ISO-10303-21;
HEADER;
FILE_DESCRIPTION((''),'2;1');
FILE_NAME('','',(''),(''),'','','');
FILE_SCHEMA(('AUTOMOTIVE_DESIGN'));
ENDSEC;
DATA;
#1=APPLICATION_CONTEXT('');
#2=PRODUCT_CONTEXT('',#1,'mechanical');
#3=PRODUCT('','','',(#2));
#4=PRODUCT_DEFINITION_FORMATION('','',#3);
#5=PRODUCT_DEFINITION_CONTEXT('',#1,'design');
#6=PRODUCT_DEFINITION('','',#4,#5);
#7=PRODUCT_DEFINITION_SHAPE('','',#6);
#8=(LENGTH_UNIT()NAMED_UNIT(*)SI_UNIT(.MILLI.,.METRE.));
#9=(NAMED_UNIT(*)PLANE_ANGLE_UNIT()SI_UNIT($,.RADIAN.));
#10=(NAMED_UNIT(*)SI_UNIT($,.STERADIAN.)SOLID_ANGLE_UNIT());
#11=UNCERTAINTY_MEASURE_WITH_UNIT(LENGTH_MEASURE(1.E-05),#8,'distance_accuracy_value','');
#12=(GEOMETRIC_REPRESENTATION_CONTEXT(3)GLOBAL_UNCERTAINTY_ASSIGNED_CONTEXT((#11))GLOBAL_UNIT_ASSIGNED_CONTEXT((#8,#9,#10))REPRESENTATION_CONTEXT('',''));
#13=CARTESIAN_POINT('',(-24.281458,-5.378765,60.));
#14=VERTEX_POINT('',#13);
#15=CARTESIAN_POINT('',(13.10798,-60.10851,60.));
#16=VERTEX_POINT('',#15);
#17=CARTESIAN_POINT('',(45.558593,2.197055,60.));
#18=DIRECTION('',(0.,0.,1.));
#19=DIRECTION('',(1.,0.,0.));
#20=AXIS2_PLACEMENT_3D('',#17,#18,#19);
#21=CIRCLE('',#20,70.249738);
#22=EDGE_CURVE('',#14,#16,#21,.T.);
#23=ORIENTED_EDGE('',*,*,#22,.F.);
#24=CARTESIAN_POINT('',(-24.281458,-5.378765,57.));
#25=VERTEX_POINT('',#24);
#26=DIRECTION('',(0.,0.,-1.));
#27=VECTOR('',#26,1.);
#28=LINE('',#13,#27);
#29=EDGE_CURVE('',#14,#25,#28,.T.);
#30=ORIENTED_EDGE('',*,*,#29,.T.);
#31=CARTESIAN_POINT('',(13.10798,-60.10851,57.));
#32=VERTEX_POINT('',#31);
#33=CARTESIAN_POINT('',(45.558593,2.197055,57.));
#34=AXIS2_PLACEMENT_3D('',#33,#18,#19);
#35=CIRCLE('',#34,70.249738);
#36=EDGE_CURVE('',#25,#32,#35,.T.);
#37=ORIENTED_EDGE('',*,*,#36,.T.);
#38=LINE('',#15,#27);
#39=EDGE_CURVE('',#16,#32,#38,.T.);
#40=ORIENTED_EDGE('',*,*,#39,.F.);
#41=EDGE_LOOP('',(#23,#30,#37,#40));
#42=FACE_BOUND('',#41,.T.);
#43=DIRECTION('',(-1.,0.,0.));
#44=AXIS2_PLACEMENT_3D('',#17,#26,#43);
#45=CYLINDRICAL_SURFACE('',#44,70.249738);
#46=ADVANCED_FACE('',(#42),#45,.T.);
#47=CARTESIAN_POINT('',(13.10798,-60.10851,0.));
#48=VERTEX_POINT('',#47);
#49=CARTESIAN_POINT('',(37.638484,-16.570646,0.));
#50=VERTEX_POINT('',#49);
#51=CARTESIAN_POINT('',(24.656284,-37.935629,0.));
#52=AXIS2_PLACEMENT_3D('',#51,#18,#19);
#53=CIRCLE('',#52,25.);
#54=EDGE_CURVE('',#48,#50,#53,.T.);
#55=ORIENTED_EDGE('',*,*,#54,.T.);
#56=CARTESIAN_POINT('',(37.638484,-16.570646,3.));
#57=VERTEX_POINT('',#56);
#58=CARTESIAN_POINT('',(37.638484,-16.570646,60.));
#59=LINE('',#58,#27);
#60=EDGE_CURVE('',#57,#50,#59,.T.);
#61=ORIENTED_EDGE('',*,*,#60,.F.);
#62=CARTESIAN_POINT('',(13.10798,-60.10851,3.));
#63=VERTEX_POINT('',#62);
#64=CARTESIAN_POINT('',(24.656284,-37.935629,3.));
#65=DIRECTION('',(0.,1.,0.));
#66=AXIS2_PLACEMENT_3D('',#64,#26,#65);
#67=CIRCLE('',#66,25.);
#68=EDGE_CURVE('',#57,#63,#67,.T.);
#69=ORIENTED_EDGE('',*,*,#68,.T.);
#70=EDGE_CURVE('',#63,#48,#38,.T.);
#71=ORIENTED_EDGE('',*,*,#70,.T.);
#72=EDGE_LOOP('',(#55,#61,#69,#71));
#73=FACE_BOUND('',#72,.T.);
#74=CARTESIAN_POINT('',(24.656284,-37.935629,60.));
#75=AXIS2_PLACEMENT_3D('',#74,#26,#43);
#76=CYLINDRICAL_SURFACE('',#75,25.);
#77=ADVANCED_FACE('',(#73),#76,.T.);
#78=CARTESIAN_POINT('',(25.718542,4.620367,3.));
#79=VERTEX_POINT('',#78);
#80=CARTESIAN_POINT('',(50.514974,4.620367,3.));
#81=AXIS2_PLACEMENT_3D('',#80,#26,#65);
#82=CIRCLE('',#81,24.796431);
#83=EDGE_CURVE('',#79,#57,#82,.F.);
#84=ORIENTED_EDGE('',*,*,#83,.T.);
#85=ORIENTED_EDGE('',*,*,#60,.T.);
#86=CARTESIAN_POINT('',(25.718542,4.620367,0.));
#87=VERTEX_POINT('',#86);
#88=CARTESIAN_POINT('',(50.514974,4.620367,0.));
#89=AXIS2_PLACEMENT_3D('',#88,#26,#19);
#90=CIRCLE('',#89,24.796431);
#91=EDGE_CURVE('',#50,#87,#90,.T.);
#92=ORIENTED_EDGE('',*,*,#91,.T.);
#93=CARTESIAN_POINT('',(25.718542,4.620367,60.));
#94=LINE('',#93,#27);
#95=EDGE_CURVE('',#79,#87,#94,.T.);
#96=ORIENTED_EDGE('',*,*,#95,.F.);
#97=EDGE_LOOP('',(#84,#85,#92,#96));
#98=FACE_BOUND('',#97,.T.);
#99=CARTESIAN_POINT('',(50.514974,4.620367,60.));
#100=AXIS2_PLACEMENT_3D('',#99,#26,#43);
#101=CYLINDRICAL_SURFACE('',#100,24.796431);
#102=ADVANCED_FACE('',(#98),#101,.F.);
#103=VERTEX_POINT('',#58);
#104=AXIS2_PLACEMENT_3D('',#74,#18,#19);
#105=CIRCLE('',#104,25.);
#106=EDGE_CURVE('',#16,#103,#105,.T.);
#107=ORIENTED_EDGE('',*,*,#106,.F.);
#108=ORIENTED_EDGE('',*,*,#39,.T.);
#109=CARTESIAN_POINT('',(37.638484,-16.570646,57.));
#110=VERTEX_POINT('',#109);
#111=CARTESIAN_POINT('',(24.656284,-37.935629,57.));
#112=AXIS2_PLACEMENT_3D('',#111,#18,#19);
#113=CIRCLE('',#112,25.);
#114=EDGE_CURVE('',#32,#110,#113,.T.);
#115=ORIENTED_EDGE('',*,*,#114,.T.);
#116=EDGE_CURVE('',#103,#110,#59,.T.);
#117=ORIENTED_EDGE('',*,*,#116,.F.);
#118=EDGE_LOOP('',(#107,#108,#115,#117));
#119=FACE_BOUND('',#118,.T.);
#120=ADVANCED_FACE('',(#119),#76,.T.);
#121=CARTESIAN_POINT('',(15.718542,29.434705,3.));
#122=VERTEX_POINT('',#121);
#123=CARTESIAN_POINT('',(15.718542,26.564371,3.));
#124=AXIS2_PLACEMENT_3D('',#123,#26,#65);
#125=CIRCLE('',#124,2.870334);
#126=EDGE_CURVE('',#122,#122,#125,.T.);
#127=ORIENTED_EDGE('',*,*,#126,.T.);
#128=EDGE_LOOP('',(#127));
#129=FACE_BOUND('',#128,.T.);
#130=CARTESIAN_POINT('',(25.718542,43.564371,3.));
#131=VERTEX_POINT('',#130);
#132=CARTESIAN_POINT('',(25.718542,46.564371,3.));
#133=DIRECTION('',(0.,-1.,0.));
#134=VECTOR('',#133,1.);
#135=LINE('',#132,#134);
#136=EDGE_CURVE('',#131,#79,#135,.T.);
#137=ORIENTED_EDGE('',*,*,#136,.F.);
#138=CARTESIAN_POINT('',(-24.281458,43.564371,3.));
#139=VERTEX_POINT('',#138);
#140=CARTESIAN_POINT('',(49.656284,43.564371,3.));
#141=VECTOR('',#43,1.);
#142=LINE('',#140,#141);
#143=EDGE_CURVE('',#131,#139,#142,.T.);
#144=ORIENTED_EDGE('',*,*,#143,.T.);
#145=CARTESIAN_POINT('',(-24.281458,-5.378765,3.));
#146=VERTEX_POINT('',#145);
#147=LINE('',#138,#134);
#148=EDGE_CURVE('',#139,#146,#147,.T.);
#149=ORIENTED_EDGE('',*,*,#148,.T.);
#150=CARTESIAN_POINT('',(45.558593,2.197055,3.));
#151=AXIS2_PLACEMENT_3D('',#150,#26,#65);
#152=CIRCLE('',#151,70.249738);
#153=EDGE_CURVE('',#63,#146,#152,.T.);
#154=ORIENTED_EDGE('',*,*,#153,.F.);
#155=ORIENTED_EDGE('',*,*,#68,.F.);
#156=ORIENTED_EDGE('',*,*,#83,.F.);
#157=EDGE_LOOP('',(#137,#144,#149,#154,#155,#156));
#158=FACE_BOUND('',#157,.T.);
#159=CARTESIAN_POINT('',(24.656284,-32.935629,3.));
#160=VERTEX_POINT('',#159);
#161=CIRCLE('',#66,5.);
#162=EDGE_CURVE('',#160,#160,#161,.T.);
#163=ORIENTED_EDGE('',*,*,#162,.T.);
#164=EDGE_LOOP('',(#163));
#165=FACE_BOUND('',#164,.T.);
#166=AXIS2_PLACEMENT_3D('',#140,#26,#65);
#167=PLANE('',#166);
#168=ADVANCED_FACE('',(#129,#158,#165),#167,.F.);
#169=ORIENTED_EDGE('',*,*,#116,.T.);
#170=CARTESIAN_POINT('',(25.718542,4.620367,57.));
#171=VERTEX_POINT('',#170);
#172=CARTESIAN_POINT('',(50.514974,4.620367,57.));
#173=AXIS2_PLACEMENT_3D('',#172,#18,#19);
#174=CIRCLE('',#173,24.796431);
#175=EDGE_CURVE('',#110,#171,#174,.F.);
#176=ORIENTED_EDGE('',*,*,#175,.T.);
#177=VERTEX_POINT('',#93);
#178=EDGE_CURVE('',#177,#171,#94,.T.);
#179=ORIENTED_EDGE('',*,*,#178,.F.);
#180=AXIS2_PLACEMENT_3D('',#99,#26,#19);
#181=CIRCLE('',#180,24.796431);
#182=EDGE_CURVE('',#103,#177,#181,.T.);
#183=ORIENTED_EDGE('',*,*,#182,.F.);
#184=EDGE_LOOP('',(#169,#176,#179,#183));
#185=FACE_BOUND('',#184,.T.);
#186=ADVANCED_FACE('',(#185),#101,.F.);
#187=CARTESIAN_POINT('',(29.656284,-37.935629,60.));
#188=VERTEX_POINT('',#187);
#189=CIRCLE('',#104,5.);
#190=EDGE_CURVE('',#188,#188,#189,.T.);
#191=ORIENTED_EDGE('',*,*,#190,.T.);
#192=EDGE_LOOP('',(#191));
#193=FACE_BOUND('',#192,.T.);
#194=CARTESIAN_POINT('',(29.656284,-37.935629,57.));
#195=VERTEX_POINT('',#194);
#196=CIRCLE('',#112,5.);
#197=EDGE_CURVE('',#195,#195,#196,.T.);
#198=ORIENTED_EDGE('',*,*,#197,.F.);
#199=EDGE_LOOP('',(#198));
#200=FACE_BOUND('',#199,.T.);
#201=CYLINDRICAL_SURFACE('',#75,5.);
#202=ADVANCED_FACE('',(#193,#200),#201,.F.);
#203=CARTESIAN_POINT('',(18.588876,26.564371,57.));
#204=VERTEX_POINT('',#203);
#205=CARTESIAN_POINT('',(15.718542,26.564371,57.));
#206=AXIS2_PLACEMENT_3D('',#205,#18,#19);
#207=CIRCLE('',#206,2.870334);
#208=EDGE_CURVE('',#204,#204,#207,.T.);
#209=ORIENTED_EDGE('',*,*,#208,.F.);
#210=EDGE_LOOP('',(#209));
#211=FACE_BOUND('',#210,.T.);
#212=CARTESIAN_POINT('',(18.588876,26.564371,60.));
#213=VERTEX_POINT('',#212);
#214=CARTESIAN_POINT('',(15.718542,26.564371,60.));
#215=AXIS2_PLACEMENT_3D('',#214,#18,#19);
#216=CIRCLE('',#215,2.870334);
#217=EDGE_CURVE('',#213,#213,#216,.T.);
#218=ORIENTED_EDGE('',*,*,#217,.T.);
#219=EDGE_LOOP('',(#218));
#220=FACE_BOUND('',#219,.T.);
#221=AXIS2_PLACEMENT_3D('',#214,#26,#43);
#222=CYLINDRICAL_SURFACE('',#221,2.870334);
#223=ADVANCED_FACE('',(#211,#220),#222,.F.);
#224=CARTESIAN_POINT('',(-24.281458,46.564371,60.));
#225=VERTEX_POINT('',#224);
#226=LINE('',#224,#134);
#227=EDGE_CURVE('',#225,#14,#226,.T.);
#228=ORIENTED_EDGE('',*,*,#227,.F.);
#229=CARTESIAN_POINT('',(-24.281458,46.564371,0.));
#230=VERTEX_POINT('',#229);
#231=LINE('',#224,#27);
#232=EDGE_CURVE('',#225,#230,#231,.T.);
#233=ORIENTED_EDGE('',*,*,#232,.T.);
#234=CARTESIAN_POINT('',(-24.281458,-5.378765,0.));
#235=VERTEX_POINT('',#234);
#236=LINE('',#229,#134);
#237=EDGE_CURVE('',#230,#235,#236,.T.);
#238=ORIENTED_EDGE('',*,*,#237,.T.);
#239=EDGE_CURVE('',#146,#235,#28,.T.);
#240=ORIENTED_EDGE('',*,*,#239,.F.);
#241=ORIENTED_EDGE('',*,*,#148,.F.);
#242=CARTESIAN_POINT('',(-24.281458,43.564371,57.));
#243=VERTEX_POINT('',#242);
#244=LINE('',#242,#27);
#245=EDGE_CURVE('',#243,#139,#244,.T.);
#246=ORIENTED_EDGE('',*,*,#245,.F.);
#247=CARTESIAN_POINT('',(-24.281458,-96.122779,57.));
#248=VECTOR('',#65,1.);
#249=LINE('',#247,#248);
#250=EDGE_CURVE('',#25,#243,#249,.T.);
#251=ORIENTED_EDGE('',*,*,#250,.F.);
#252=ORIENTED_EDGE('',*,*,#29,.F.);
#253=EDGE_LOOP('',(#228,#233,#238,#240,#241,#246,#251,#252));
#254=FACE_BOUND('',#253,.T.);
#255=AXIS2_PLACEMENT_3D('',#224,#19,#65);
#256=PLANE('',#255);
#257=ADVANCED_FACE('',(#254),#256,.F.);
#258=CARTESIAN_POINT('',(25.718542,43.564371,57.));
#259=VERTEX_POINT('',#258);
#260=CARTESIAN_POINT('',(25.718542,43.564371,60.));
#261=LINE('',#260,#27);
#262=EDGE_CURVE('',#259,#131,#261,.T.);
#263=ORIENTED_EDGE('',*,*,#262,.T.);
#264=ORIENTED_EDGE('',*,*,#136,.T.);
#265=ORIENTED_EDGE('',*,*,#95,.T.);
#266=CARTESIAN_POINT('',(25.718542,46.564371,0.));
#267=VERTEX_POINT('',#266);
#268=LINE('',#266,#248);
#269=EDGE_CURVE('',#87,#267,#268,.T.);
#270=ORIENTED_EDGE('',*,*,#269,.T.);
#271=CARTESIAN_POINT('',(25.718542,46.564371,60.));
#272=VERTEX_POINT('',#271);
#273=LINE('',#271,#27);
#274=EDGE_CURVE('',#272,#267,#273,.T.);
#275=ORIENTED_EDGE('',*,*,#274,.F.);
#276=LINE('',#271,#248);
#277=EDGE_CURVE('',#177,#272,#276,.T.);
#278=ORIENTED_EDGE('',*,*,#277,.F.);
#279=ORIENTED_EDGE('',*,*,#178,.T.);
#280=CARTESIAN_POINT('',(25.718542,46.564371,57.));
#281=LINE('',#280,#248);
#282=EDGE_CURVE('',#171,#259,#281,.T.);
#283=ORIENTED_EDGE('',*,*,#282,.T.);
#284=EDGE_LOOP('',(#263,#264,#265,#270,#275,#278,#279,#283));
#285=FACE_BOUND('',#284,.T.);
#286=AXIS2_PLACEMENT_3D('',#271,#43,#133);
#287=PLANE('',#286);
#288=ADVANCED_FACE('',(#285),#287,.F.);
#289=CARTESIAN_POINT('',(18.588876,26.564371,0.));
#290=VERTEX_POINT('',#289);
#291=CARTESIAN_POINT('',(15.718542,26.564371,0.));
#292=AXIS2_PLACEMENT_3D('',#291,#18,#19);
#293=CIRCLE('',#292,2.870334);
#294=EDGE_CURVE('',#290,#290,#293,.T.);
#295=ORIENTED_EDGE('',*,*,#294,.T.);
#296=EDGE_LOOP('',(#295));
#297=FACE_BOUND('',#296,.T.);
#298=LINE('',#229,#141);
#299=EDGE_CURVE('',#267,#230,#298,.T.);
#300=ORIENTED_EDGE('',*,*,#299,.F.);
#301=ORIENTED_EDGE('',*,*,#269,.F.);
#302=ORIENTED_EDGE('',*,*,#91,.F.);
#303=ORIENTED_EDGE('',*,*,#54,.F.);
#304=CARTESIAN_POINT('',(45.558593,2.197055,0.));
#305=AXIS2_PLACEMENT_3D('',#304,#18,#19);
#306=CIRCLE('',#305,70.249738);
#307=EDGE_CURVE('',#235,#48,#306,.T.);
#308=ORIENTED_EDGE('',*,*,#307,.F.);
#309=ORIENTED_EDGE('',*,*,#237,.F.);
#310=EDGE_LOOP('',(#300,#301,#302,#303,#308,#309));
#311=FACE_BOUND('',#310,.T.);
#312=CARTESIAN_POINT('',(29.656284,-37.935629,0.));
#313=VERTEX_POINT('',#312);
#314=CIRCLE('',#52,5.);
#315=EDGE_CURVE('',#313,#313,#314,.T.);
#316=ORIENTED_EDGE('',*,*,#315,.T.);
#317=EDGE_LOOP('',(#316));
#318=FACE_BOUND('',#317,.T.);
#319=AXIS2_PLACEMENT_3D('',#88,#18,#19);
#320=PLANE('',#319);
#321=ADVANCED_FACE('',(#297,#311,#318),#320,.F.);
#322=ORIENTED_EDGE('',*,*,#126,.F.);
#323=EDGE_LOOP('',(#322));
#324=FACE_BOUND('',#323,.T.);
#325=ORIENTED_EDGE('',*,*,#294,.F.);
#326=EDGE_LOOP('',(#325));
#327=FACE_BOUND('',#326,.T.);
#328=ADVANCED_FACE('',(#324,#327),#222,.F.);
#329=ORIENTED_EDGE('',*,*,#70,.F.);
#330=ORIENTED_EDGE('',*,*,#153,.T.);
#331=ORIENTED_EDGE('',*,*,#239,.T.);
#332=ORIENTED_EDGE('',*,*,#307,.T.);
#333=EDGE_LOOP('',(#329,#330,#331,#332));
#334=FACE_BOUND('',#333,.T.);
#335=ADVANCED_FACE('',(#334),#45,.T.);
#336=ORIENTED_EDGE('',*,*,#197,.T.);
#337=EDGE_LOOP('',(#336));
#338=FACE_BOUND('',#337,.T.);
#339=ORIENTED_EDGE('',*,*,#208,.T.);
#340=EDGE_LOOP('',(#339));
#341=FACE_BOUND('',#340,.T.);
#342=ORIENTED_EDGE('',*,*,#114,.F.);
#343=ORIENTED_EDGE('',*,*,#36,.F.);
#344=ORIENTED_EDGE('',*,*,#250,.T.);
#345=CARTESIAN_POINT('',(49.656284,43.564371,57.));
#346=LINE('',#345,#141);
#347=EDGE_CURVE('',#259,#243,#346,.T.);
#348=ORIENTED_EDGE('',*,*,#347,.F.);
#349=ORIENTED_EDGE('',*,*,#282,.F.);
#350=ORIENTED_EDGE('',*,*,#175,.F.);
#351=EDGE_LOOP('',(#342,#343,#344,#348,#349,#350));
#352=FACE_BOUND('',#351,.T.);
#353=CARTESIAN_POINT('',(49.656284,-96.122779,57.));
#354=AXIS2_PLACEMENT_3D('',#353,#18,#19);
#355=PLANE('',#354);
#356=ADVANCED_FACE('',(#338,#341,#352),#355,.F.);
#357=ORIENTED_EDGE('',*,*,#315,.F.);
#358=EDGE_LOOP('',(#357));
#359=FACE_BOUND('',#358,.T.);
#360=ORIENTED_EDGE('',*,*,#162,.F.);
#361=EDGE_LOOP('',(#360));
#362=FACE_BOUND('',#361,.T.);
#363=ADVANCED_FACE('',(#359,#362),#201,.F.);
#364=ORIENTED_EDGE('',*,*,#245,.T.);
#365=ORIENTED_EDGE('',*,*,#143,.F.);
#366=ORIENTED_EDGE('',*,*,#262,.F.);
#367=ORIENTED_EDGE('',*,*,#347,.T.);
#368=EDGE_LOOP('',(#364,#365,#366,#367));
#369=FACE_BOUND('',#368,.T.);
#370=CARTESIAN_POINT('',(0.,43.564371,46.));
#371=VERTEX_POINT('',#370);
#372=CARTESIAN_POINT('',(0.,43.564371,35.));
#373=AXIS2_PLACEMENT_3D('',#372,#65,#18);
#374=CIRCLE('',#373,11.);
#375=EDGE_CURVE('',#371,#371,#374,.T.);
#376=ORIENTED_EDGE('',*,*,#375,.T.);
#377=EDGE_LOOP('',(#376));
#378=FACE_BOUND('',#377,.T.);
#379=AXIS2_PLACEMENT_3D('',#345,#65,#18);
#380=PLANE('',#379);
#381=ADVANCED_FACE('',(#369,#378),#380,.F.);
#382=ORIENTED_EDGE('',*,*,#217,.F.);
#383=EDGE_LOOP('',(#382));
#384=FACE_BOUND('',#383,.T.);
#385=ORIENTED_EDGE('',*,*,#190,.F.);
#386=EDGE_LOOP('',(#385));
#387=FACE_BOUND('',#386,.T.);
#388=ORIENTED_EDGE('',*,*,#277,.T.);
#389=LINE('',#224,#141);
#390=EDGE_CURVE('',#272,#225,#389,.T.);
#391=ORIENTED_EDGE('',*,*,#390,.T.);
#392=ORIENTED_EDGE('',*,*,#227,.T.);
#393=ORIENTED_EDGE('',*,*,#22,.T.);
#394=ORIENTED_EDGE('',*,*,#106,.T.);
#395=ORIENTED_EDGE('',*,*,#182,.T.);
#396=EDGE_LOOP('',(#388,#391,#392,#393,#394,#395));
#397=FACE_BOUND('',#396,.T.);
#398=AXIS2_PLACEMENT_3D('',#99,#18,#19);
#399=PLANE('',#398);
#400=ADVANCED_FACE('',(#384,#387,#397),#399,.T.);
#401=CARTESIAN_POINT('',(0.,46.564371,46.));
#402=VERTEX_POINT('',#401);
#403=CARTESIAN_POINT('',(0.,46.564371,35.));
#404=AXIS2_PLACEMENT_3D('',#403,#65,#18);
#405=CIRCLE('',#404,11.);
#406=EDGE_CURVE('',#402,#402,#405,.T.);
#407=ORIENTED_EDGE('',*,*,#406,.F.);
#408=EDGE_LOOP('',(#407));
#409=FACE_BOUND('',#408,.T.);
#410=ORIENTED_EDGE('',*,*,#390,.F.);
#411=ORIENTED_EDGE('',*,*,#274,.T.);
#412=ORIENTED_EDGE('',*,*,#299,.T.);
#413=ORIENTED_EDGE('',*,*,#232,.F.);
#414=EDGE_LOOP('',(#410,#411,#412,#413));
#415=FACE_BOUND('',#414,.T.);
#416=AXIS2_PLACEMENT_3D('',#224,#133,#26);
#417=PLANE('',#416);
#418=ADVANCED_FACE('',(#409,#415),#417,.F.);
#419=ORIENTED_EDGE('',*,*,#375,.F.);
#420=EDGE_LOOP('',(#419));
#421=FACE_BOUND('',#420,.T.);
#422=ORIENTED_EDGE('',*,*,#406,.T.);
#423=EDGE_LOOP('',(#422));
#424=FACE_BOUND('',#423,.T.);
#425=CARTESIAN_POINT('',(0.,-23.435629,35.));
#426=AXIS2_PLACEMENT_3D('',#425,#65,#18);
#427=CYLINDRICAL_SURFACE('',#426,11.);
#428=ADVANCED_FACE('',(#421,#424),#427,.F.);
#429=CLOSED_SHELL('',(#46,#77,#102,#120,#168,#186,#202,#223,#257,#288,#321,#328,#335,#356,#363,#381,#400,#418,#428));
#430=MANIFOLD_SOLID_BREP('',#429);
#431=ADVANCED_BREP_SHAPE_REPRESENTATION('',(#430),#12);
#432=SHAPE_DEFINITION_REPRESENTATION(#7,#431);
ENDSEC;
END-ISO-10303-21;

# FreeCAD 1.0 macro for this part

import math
import FreeCAD as App
import Part
import Sketcher
from FreeCAD import Vector
Q = App.Units.Quantity


def add_polygon(sketch, points):
    """Adds a closed chain of lines whose ends are joined by coincident constraints."""
    first, n = sketch.GeometryCount, len(points)
    for a, b in zip(points, points[1:] + points[:1]):
        sketch.addGeometry(Part.LineSegment(App.Vector(*a, 0), App.Vector(*b, 0)), False)
    for i in range(n):
        sketch.addConstraint(Sketcher.Constraint("Coincident", first + i, 2, first + (i + 1) % n, 1))

doc = App.newDocument("Part")
body = doc.addObject("PartDesign::Body", "Body")

# Sketch on XY plane
sketch1 = body.newObject("Sketcher::SketchObject", "Sketch")
sketch1.AttachmentSupport = (doc.getObject("XY_Plane"), [""])
sketch1.MapMode = "FlatFace"
sketch1.addGeometry([
    Part.LineSegment(Vector(-24.3, 46.6, 0), Vector(-24.3, -5.4, 0)),  # 0
    Part.ArcOfCircle(Part.Circle(Vector(45.6, 2.2, 0), Vector(0, 0, 1), 70.2), math.radians(-174), math.radians(-118)),  # 1
    Part.ArcOfCircle(Part.Circle(Vector(24.7, -37.9, 0), Vector(0, 0, 1), 25), math.radians(-118), math.radians(59)),  # 2
    Part.ArcOfCircle(Part.Circle(Vector(50.5, 4.6, 0), Vector(0, 0, 1), 24.8), math.radians(-180), math.radians(-121)),  # 3
    Part.LineSegment(Vector(25.7, 4.6, 0), Vector(25.7, 46.6, 0)),  # 4
    Part.LineSegment(Vector(25.7, 46.6, 0), Vector(-24.3, 46.6, 0)),  # 5
    Part.Circle(Vector(24.7, -37.9, 0), Vector(0, 0, 1), 5),  # 6
    Part.Circle(Vector(15.7, 26.6, 0), Vector(0, 0, 1), 2.9),  # 7
], False)
sketch1.addConstraint([
    Sketcher.Constraint("Coincident", 0, 2, 1, 1),
    Sketcher.Constraint("Tangent", 1, 2, 2, 1),
    Sketcher.Constraint("Tangent", 2, 2, 3, 2),
    Sketcher.Constraint("Tangent", 3, 1, 4, 1),
    Sketcher.Constraint("Coincident", 4, 2, 5, 1),
    Sketcher.Constraint("Coincident", 5, 2, 0, 1),
    Sketcher.Constraint("Vertical", 0),
    Sketcher.Constraint("Vertical", 4),
    Sketcher.Constraint("Horizontal", 5),
    Sketcher.Constraint("Coincident", 6, 3, 2, 3),
    Sketcher.Constraint("Diameter", 6, Q("10 mm")),
    Sketcher.Constraint("Radius", 2, Q("25 mm")),
    Sketcher.Constraint("DistanceX", 5, 2, 5, 1, Q("50 mm")),
    Sketcher.Constraint("DistanceX", 0, 2, 7, 3, Q("40 mm")),
    Sketcher.Constraint("DistanceY", 7, 3, 4, 2, Q("20 mm")),
    Sketcher.Constraint("DistanceY", 2, 3, 7, 3, Q("64.5 mm")),
    Sketcher.Constraint("Radius", 1, Q("70.249738 mm")),
    Sketcher.Constraint("Radius", 3, Q("24.796431 mm")),
    Sketcher.Constraint("Diameter", 7, Q("5.740668 mm")),
    Sketcher.Constraint("DistanceY", 2, 2, 1, 3, Q("18.767701 mm")),
    Sketcher.Constraint("DistanceX", 2, 3, 2, 2, Q("12.9822 mm")),
    Sketcher.Constraint("DistanceY", 2, 3, -1, 1, Q("37.935629 mm")),
    Sketcher.Constraint("DistanceX", -1, 1, 1, 2, Q("13.10798 mm")),
])
pad1 = body.newObject("PartDesign::Pad", "Pad")
pad1.Profile = sketch1
pad1.Length = 60

# Sketch on YZ plane
sketch2 = body.newObject("Sketcher::SketchObject", "Sketch001")
sketch2.AttachmentSupport = (doc.getObject("YZ_Plane"), [""])
sketch2.MapMode = "FlatFace"
sketch2.AttachmentOffset = App.Placement(Vector(0, 0, -24.281458), App.Rotation())
add_polygon(sketch2, [(44, 3), (-96, 3), (-96, 57), (44, 57)])  # lines 0-3
sketch2.addConstraint([
    Sketcher.Constraint("Horizontal", 0),
    Sketcher.Constraint("Vertical", 1),
    Sketcher.Constraint("Horizontal", 2),
    Sketcher.Constraint("Vertical", 3),
    Sketcher.Constraint("DistanceY", 1, 1, 1, 2, Q("54 mm")),
    Sketcher.Constraint("DistanceY", -1, 1, 0, 2, Q("3 mm")),
    Sketcher.Constraint("DistanceX", 0, 2, 0, 1, Q("139.687151 mm")),
    Sketcher.Constraint("DistanceX", 0, 2, -1, 1, Q("96.122779 mm")),
])
pocket1 = body.newObject("PartDesign::Pocket", "Pocket")
pocket1.Profile = sketch2
pocket1.Type = "ThroughAll"
pocket1.Reversed = True

# Sketch on XZ plane
sketch3 = body.newObject("Sketcher::SketchObject", "Sketch002")
sketch3.AttachmentSupport = (doc.getObject("XZ_Plane"), [""])
sketch3.MapMode = "FlatFace"
sketch3.AttachmentOffset = App.Placement(Vector(0, 0, -46.564371), App.Rotation())
sketch3.addGeometry(Part.Circle(Vector(0, 35, 0), Vector(0, 0, 1), 11), False)
sketch3.addConstraint([
    Sketcher.Constraint("PointOnObject", 0, 3, -2),
    Sketcher.Constraint("Diameter", 0, Q("22 mm")),
    Sketcher.Constraint("DistanceY", -1, 1, 0, 3, Q("35 mm")),
])
pocket2 = body.newObject("PartDesign::Pocket", "Pocket001")
pocket2.Profile = sketch3
pocket2.Length = 70
pocket2.Reversed = True

doc.recompute()
